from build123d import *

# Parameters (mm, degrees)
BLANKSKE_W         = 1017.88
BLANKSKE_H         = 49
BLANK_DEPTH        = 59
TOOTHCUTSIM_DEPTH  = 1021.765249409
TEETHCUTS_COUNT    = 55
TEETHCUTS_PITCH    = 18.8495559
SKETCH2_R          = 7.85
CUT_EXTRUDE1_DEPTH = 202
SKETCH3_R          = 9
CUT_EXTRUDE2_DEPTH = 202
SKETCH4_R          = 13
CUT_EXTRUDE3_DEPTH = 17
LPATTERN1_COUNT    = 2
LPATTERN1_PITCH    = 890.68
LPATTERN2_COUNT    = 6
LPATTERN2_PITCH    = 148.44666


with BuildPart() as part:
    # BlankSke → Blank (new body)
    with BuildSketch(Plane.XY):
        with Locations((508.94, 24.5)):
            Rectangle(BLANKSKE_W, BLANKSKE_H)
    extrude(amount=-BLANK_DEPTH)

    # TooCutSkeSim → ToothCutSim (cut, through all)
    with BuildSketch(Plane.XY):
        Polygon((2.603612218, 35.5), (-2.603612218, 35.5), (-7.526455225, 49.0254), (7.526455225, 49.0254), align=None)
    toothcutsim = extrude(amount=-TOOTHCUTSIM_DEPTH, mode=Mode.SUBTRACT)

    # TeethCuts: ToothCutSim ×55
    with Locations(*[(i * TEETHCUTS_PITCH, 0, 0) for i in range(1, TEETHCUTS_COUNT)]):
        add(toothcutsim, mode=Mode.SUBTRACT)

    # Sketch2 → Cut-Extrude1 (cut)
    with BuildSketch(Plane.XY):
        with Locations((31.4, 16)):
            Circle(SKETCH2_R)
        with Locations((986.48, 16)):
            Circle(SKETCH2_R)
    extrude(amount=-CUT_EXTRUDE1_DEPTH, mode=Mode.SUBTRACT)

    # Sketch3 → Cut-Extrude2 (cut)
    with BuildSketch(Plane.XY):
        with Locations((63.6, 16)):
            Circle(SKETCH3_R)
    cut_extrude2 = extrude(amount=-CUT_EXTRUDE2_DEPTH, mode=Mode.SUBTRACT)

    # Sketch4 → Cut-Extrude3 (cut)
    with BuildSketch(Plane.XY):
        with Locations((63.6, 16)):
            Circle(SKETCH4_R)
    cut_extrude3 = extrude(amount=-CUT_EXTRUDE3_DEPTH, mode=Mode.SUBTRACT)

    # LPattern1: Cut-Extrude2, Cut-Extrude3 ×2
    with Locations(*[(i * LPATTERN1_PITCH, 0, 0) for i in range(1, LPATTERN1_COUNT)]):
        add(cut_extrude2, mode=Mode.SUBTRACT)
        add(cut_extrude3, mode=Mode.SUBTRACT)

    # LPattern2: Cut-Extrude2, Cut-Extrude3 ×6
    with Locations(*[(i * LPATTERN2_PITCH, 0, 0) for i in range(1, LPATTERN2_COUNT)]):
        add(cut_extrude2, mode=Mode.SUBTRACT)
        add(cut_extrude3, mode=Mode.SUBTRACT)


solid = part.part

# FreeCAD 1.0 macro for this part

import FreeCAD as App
import Part
import Sketcher

V = App.Vector
Q = App.Units.Quantity


def add_polygon(sketch, points):
    """Adds a closed chain of lines whose ends are joined by coincident constraints."""
    first, n = sketch.GeometryCount, len(points)
    for a, b in zip(points, points[1:] + points[:1]):
        sketch.addGeometry(Part.LineSegment(App.Vector(*a, 0), App.Vector(*b, 0)), False)
    for i in range(n):
        sketch.addConstraint(Sketcher.Constraint("Coincident", first + i, 2, first + (i + 1) % n, 1))

doc = App.newDocument("Part")
body = doc.addObject("PartDesign::Body", "Body")

sketch1 = doc.addObject("Sketcher::SketchObject", "Sketch")
body.addObject(sketch1)
sketch1.AttachmentSupport = (doc.XY_Plane, [""])
sketch1.MapMode = "FlatFace"
add_polygon(sketch1, [(0, 49), (0, 0), (1017.88, 0), (1017.88, 49)])
sketch1.addConstraint([
    Sketcher.Constraint("Vertical", 0),
    Sketcher.Constraint("Horizontal", 1),
    Sketcher.Constraint("Vertical", 2),
    Sketcher.Constraint("Horizontal", 3),
    Sketcher.Constraint("Coincident", 0, 2, -1, 1),
    Sketcher.Constraint("DistanceY", 0, 2, 0, 1, 49.0),
    Sketcher.Constraint("DistanceX", 1, 1, 1, 2, 1017.88),
])
pad1 = doc.addObject("PartDesign::Pad", "Pad")
body.addObject(pad1)
pad1.Profile = sketch1
pad1.Length = 59
pad1.Reversed = True

sketch2 = doc.addObject("Sketcher::SketchObject", "Sketch001")
body.addObject(sketch2)
sketch2.AttachmentSupport = (doc.XY_Plane, [""])
sketch2.MapMode = "FlatFace"
add_polygon(sketch2, [(-2.603612, 35.5), (2.603612, 35.5), (7.526455, 49.0254), (-7.526455, 49.0254)])
sketch2.addConstraint([
    Sketcher.Constraint("Horizontal", 0),
    Sketcher.Constraint("Horizontal", 2),
    Sketcher.Constraint("Equal", 1, 3),
    Sketcher.Constraint("Angle", 1, Q("70 deg")),
    Sketcher.Constraint("DistanceY", -1, 1, 0, 2, 35.5),
    Sketcher.Constraint("DistanceX", 2, 2, 2, 1, 15.05291),
    Sketcher.Constraint("DistanceY", -1, 1, 1, 2, 49.0254),
    Sketcher.Constraint("DistanceX", -1, 1, 0, 2, 2.603612),
])
pocket1 = doc.addObject("PartDesign::Pocket", "Pocket")
body.addObject(pocket1)
pocket1.Profile = sketch2
pocket1.Type = "ThroughAll"
doc.recompute()

linearpattern = doc.addObject("PartDesign::LinearPattern", "LinearPattern")
body.addObject(linearpattern)
linearpattern.Originals = [pocket1]
linearpattern.Direction = (doc.X_Axis, [""])
linearpattern.Mode = "offset"
linearpattern.Offset = 18.849556
linearpattern.Occurrences = 55
body.Tip = linearpattern

sketch3 = doc.addObject("Sketcher::SketchObject", "Sketch002")
body.addObject(sketch3)
sketch3.AttachmentSupport = (doc.XY_Plane, [""])
sketch3.MapMode = "FlatFace"
sketch3.addGeometry([
    Part.Circle(V(31.4, 16, 0), V(0, 0, 1), 7.85),
    Part.Circle(V(986.48, 16, 0), V(0, 0, 1), 7.85),
], False)
sketch3.addConstraint([
    Sketcher.Constraint("Equal", 0, 1),
    Sketcher.Constraint("Horizontal", 0, 3, 1, 3),
    Sketcher.Constraint("Diameter", 0, 15.7),
    Sketcher.Constraint("DistanceY", -1, 1, 0, 3, 16.0),
    Sketcher.Constraint("DistanceX", -1, 1, 0, 3, 31.4),
    Sketcher.Constraint("DistanceX", -1, 1, 1, 3, 986.48),
])
pocket2 = doc.addObject("PartDesign::Pocket", "Pocket001")
body.addObject(pocket2)
pocket2.Profile = sketch3
pocket2.Length = 202

sketch4 = doc.addObject("Sketcher::SketchObject", "Sketch003")
body.addObject(sketch4)
sketch4.AttachmentSupport = (doc.XY_Plane, [""])
sketch4.MapMode = "FlatFace"
sketch4.addGeometry(Part.Circle(V(63.6, 16, 0), V(0, 0, 1), 9), False)
sketch4.addConstraint([
    Sketcher.Constraint("Diameter", 0, 18.0),
    Sketcher.Constraint("DistanceY", -1, 1, 0, 3, 16.0),
    Sketcher.Constraint("DistanceX", -1, 1, 0, 3, 63.6),
])
pocket3 = doc.addObject("PartDesign::Pocket", "Pocket002")
body.addObject(pocket3)
pocket3.Profile = sketch4
pocket3.Length = 202

sketch5 = doc.addObject("Sketcher::SketchObject", "Sketch004")
body.addObject(sketch5)
sketch5.AttachmentSupport = (doc.XY_Plane, [""])
sketch5.MapMode = "FlatFace"
sketch5.addGeometry(Part.Circle(V(63.6, 16, 0), V(0, 0, 1), 13), False)
sketch5.addConstraint([
    Sketcher.Constraint("Diameter", 0, 26.0),
    Sketcher.Constraint("DistanceY", -1, 1, 0, 3, 16.0),
    Sketcher.Constraint("DistanceX", -1, 1, 0, 3, 63.6),
])
pocket4 = doc.addObject("PartDesign::Pocket", "Pocket003")
body.addObject(pocket4)
pocket4.Profile = sketch5
pocket4.Length = 17
doc.recompute()

linearpattern2 = doc.addObject("PartDesign::LinearPattern", "LinearPattern001")
body.addObject(linearpattern2)
linearpattern2.Originals = [pocket3, pocket4]
linearpattern2.Direction = (doc.X_Axis, [""])
linearpattern2.Mode = "offset"
linearpattern2.Offset = 890.68
linearpattern2.Occurrences = 2
body.Tip = linearpattern2
doc.recompute()

linearpattern3 = doc.addObject("PartDesign::LinearPattern", "LinearPattern002")
body.addObject(linearpattern3)
linearpattern3.Originals = [pocket3, pocket4]
linearpattern3.Direction = (doc.X_Axis, [""])
linearpattern3.Mode = "offset"
linearpattern3.Offset = 148.44666
linearpattern3.Occurrences = 6
body.Tip = linearpattern3

doc.recompute()
